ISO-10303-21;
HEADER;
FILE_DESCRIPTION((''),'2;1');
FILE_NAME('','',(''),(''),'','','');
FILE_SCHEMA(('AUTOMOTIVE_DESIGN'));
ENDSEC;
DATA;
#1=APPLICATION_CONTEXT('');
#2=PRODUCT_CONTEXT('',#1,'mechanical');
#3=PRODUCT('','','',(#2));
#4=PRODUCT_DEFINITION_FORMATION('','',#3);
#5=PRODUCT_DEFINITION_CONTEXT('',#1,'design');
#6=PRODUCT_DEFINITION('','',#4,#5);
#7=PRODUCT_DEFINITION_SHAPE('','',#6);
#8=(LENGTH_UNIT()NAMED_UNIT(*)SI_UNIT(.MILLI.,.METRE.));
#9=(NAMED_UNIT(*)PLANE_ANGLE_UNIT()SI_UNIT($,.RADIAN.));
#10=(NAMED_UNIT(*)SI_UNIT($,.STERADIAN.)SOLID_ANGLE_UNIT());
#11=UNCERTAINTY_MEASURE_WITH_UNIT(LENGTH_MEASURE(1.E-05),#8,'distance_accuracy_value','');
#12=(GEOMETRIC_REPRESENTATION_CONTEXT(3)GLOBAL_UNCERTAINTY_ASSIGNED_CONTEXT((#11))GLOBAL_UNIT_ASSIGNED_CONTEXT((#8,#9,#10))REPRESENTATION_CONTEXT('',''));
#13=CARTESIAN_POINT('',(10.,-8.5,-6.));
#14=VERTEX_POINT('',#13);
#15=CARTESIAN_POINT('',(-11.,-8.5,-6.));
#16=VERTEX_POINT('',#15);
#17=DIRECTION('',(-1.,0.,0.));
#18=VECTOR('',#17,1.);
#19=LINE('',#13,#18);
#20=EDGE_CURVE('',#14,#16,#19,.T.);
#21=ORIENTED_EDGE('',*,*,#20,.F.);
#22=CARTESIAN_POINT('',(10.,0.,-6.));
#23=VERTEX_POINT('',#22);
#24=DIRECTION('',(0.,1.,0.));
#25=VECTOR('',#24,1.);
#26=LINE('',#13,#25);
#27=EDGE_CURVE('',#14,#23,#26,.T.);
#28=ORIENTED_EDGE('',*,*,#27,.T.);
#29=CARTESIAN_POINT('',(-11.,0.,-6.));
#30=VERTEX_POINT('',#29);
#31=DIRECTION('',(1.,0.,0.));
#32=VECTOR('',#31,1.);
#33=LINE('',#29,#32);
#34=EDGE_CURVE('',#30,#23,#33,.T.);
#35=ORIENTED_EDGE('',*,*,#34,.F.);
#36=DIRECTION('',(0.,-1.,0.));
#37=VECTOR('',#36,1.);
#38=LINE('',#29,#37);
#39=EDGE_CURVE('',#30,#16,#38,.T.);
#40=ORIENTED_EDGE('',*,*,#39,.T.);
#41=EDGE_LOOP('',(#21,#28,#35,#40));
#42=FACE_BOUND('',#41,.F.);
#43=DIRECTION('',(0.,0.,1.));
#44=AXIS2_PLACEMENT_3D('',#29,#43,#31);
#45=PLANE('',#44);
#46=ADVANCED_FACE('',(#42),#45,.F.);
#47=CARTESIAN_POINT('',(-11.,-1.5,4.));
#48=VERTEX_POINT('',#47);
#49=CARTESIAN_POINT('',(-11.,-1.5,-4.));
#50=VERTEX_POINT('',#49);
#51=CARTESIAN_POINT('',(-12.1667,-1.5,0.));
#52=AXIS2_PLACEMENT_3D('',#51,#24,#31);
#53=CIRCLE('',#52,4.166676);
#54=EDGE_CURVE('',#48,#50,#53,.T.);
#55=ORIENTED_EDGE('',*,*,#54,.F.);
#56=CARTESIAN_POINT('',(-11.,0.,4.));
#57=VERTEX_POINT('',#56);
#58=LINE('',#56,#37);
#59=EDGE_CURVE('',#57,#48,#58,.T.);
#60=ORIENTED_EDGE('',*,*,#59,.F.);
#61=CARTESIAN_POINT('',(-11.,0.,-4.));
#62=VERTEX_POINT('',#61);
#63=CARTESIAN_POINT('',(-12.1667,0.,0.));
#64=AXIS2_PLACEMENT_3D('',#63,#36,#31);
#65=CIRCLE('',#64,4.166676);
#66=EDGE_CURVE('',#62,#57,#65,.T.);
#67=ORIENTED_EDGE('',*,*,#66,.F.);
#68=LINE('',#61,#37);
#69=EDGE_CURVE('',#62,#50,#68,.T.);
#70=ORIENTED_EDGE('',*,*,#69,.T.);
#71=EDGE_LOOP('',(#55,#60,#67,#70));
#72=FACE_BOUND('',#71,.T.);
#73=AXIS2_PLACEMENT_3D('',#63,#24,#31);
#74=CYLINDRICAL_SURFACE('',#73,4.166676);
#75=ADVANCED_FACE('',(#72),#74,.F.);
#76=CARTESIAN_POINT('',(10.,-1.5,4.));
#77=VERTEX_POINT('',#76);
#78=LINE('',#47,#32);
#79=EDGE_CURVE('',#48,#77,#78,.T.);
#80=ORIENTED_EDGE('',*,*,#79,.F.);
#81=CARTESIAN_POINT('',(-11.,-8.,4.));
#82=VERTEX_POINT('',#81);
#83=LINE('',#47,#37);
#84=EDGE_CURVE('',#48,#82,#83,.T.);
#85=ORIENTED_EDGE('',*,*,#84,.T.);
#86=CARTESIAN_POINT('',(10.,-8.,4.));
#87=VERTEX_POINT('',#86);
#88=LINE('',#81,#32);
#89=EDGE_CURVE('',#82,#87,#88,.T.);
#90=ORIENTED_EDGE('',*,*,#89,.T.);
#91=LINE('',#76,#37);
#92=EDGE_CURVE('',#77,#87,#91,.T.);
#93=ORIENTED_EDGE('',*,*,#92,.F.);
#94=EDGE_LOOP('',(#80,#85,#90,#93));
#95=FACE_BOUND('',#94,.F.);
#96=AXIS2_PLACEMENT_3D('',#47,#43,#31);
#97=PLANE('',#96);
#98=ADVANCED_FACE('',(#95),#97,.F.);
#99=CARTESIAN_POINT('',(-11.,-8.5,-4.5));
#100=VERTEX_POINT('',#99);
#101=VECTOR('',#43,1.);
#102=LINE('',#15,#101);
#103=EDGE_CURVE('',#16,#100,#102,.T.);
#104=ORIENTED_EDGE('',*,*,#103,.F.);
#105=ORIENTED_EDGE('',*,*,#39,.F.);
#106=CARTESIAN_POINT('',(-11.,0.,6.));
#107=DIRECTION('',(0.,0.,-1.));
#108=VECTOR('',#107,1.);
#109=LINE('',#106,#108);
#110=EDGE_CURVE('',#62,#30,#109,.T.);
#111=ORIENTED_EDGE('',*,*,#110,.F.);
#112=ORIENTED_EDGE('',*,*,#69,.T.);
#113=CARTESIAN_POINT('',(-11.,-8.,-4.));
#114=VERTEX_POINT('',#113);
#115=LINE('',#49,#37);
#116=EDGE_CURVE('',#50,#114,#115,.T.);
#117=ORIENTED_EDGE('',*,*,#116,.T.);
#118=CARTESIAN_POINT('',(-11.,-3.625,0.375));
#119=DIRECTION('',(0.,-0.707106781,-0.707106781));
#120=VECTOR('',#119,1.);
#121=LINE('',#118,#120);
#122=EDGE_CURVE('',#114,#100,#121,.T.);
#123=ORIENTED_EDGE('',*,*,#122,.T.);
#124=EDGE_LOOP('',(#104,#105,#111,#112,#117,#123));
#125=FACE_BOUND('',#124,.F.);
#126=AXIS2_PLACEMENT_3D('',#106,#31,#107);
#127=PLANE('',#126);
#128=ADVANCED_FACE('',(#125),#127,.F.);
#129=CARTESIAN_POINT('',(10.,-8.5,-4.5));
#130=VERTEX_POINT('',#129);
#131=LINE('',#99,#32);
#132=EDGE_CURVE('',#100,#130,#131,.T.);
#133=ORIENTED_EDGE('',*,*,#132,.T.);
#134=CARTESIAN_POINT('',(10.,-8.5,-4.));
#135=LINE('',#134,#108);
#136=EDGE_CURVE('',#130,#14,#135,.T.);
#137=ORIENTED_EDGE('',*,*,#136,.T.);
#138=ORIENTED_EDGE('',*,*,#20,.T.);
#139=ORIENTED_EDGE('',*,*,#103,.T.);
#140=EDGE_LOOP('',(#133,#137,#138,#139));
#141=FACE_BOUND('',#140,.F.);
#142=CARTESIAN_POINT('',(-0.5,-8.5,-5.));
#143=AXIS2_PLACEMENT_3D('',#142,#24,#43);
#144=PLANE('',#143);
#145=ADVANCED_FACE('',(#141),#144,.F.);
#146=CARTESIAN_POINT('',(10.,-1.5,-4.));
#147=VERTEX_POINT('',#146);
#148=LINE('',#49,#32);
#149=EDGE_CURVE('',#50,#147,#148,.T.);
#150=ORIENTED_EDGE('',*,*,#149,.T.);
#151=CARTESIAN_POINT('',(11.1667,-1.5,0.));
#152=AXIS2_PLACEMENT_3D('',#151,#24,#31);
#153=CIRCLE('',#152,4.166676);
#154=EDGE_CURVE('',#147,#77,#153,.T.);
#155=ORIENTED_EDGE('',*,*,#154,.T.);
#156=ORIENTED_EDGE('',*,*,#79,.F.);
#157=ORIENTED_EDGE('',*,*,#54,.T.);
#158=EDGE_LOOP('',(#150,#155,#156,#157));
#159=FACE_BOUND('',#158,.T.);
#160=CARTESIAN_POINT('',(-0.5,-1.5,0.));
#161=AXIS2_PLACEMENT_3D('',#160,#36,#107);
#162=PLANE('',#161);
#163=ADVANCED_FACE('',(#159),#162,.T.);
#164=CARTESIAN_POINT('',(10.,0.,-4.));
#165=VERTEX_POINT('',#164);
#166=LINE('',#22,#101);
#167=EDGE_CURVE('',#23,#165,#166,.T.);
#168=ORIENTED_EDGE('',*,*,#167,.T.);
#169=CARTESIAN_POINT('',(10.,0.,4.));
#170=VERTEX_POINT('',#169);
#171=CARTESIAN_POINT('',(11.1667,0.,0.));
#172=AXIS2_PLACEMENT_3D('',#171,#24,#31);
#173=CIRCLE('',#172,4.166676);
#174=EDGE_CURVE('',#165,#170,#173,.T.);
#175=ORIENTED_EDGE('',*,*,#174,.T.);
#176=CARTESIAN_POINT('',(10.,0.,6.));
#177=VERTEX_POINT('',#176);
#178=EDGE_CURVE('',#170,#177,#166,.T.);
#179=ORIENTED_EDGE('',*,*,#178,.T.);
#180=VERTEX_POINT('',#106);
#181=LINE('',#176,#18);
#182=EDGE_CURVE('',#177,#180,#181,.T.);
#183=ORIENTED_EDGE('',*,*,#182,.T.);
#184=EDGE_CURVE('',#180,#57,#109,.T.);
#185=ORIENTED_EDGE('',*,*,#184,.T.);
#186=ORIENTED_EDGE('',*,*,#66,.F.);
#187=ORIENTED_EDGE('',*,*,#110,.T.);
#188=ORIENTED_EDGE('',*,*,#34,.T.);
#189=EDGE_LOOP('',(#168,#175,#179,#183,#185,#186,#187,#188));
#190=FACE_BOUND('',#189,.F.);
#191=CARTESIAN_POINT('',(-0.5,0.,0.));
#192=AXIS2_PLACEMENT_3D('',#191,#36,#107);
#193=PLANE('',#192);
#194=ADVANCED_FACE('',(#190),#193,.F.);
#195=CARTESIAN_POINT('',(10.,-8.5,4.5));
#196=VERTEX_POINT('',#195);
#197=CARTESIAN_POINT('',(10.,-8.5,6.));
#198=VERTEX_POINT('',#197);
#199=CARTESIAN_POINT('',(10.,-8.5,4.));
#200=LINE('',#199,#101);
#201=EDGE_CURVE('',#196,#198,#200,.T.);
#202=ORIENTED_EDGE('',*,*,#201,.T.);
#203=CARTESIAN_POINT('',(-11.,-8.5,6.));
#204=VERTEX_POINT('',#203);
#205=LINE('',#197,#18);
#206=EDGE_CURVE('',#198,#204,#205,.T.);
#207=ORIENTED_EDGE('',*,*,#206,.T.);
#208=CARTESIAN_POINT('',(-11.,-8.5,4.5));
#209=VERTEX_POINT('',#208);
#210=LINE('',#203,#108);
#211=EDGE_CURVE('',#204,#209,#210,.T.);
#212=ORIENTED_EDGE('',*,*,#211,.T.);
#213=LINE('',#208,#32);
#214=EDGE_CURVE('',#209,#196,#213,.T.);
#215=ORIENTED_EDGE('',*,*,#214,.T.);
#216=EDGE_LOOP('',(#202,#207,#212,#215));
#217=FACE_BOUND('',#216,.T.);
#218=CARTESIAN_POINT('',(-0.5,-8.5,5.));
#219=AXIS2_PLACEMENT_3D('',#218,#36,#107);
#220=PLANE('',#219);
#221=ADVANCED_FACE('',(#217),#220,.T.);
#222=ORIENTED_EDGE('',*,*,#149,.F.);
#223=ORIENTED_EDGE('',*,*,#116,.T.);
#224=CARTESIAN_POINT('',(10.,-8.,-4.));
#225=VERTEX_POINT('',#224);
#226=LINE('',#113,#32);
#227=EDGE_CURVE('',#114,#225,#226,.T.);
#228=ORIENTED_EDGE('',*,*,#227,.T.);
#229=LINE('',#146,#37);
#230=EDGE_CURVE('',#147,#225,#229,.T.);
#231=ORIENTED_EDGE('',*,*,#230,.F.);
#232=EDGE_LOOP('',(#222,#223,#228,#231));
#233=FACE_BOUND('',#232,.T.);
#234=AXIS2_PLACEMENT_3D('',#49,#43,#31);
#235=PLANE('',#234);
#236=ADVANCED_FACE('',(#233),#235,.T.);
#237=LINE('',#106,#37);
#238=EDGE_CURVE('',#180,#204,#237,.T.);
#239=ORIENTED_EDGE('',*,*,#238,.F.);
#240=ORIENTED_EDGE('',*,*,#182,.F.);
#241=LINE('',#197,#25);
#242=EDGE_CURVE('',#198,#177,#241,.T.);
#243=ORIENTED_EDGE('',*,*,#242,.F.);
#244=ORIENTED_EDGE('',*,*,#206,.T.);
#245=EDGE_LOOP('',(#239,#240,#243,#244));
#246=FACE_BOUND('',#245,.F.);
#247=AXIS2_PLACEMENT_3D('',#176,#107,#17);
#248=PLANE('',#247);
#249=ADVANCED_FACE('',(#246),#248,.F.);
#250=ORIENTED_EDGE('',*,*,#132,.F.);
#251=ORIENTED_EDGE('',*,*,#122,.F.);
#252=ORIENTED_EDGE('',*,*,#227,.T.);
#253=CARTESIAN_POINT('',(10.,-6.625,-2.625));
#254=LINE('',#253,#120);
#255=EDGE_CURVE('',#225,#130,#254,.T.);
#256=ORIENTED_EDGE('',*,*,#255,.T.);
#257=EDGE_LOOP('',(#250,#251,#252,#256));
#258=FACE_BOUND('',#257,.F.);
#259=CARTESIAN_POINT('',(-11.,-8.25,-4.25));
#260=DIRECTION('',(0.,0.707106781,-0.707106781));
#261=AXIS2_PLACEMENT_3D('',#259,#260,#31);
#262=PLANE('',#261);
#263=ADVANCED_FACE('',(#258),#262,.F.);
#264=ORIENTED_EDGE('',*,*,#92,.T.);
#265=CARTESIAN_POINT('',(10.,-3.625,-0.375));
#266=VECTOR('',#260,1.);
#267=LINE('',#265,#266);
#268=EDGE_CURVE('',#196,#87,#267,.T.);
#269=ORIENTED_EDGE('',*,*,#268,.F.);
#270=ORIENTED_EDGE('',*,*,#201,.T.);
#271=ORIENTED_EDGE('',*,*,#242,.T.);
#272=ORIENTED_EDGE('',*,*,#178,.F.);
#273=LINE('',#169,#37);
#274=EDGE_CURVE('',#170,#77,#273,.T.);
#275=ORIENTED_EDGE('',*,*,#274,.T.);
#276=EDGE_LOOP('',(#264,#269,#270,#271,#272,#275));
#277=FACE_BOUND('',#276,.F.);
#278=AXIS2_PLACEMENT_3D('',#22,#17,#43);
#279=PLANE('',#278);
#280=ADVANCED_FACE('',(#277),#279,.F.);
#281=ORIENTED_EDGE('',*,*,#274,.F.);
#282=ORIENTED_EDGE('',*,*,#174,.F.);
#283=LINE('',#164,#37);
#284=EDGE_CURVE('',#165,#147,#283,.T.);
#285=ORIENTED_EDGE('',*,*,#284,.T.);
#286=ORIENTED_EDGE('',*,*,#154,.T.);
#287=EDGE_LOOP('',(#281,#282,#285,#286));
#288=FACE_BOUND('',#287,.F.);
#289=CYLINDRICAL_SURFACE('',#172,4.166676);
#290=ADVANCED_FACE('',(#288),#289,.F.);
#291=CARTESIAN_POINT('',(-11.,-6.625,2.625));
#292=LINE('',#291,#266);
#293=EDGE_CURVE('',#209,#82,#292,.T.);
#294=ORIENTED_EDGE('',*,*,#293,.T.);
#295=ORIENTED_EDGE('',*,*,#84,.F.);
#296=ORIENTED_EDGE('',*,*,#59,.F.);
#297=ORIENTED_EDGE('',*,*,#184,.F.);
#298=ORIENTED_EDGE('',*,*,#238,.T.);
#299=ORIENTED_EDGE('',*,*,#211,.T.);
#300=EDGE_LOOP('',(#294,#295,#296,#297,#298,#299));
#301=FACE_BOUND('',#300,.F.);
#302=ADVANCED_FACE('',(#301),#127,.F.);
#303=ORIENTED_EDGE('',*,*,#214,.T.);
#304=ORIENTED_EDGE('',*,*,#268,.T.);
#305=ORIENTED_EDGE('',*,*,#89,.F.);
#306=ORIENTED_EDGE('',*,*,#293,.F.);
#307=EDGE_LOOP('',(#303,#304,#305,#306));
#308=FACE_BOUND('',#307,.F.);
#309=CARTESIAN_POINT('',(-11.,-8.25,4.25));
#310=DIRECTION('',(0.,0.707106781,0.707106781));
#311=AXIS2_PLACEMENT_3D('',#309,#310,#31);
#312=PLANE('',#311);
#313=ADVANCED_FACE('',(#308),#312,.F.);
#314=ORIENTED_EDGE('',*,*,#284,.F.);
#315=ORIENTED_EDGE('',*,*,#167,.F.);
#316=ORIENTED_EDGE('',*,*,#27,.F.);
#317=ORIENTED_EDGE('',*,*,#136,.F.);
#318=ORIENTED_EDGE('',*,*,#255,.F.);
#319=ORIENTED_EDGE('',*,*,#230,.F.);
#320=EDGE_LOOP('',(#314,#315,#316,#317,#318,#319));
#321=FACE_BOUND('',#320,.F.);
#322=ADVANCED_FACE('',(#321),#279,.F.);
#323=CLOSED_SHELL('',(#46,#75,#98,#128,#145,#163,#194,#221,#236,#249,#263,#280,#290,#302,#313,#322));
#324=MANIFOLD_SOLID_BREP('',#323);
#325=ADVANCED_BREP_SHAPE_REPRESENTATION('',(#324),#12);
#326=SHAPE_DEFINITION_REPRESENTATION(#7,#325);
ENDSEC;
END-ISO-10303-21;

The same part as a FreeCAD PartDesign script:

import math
import FreeCAD as App
import Part
import Sketcher

V = App.Vector


def edges_at(feature, points):
    """Names of the edges that pass closest to the given points."""
    edges = feature.Shape.Edges
    near = lambda p: min(range(len(edges)), key=lambda i: edges[i].distToShape(Part.Vertex(*p))[0])
    return sorted({f"Edge{near(p) + 1}" for p in points})


def add_polygon(sketch, points):
    """Adds a closed chain of lines whose ends are joined by coincident constraints."""
    first, n = sketch.GeometryCount, len(points)
    for a, b in zip(points, points[1:] + points[:1]):
        sketch.addGeometry(Part.LineSegment(App.Vector(*a, 0), App.Vector(*b, 0)), False)
    for i in range(n):
        sketch.addConstraint(Sketcher.Constraint("Coincident", first + i, 2, first + (i + 1) % n, 1))

doc = App.newDocument("Part")
body = doc.addObject("PartDesign::Body", "Body")

# Sketch on XZ plane
sketch1 = body.newObject("Sketcher::SketchObject", "Sketch")
sketch1.AttachmentSupport = (doc.getObject("XZ_Plane"), [""])
sketch1.MapMode = "FlatFace"
add_polygon(sketch1, [(10, -6), (10, 6), (-11, 6), (-11, -6)])  # lines 0-3
sketch1.addConstraint(Sketcher.Constraint("Vertical", 0))
sketch1.addConstraint(Sketcher.Constraint("Horizontal", 1))
sketch1.addConstraint(Sketcher.Constraint("Vertical", 2))
sketch1.addConstraint(Sketcher.Constraint("Horizontal", 3))
sketch1.addConstraint(Sketcher.Constraint("DistanceX", -1, 1, 0, 2, 10.0))
sketch1.addConstraint(Sketcher.Constraint("DistanceX", 1, 2, -1, 1, 11.0))
sketch1.addConstraint(Sketcher.Constraint("DistanceY", 0, 1, 0, 2, 12.0))
sketch1.addConstraint(Sketcher.Constraint("DistanceY", -1, 1, 0, 2, 6.0))
pad1 = body.newObject("PartDesign::Pad", "Pad")
pad1.Profile = sketch1
pad1.Length = 1.5

# Sketch on XZ plane
sketch2 = body.newObject("Sketcher::SketchObject", "Sketch001")
sketch2.AttachmentSupport = (doc.getObject("XZ_Plane"), [""])
sketch2.MapMode = "FlatFace"
sketch2.AttachmentOffset = App.Placement(V(0, 0, 1.5), App.Rotation())
add_polygon(sketch2, [(10, 6), (-11, 6), (-11, 4), (10, 4)])  # lines 0-3
add_polygon(sketch2, [(-11, -4), (-11, -6), (10, -6), (10, -4)])  # lines 4-7
sketch2.addConstraint(Sketcher.Constraint("Horizontal", 0))
sketch2.addConstraint(Sketcher.Constraint("Vertical", 1))
sketch2.addConstraint(Sketcher.Constraint("Horizontal", 2))
sketch2.addConstraint(Sketcher.Constraint("Vertical", 3))
sketch2.addConstraint(Sketcher.Constraint("Vertical", 4))
sketch2.addConstraint(Sketcher.Constraint("Horizontal", 5))
sketch2.addConstraint(Sketcher.Constraint("Vertical", 6))
sketch2.addConstraint(Sketcher.Constraint("Horizontal", 7))
sketch2.addConstraint(Sketcher.Constraint("Symmetric", 0, 2, 4, 2, -1))
sketch2.addConstraint(Sketcher.Constraint("Symmetric", 2, 2, 6, 2, -1))
sketch2.addConstraint(Sketcher.Constraint("DistanceX", 0, 2, -1, 1, 11.0))
sketch2.addConstraint(Sketcher.Constraint("DistanceX", 0, 2, 0, 1, 21.0))
sketch2.addConstraint(Sketcher.Constraint("DistanceY", 1, 2, 1, 1, 2.0))
sketch2.addConstraint(Sketcher.Constraint("DistanceY", -1, 1, 0, 2, 6.0))
pad2 = body.newObject("PartDesign::Pad", "Pad001")
pad2.Profile = sketch2
pad2.Length = 7

# Sketch on XZ plane
sketch3 = body.newObject("Sketcher::SketchObject", "Sketch002")
sketch3.AttachmentSupport = (doc.getObject("XZ_Plane"), [""])
sketch3.MapMode = "FlatFace"
sketch3.addGeometry(Part.ArcOfCircle(Part.Circle(V(-12.1667, 0, 0), V(0, 0, 1), 4.166676), math.radians(-73.739355), math.radians(73.739355)), False)
sketch3.addGeometry(Part.LineSegment(V(-11, -4, 0), V(-11, 4, 0)), False)
sketch3.addGeometry(Part.LineSegment(V(10, 4, 0), V(10, -4, 0)), False)
sketch3.addGeometry(Part.ArcOfCircle(Part.Circle(V(11.1667, 0, 0), V(0, 0, 1), 4.166676), math.radians(106.260645), math.radians(253.739355)), False)
sketch3.addConstraint(Sketcher.Constraint("Coincident", 0, 1, 1, 1))
sketch3.addConstraint(Sketcher.Constraint("Coincident", 1, 2, 0, 2))
sketch3.addConstraint(Sketcher.Constraint("Coincident", 2, 1, 3, 1))
sketch3.addConstraint(Sketcher.Constraint("Coincident", 3, 2, 2, 2))
sketch3.addConstraint(Sketcher.Constraint("Vertical", 1))
sketch3.addConstraint(Sketcher.Constraint("Vertical", 2))
sketch3.addConstraint(Sketcher.Constraint("Equal", 0, 3))
sketch3.addConstraint(Sketcher.Constraint("PointOnObject", 0, 3, -1))
sketch3.addConstraint(Sketcher.Constraint("PointOnObject", 3, 3, -1))
sketch3.addConstraint(Sketcher.Constraint("Horizontal", 1, 2, 2, 1))
sketch3.addConstraint(Sketcher.Constraint("DistanceY", 1, 1, 1, 2, 8.0))
sketch3.addConstraint(Sketcher.Constraint("DistanceX", 0, 1, -1, 1, 11.0))
sketch3.addConstraint(Sketcher.Constraint("DistanceX", -1, 1, 2, 1, 10.0))
sketch3.addConstraint(Sketcher.Constraint("Radius", 0, 4.1667))
pocket1 = body.newObject("PartDesign::Pocket", "Pocket")
pocket1.Profile = sketch3
pocket1.Type = "ThroughAll"
pocket1.Reversed = True
doc.recompute()

chamfer = body.newObject("PartDesign::Chamfer", "Chamfer")
chamfer.Base = (pocket1, edges_at(pocket1, [(-0.5, -8.5, 4), (-0.5, -8.5, -4)]))
chamfer.Size = 0.5

doc.recompute()
